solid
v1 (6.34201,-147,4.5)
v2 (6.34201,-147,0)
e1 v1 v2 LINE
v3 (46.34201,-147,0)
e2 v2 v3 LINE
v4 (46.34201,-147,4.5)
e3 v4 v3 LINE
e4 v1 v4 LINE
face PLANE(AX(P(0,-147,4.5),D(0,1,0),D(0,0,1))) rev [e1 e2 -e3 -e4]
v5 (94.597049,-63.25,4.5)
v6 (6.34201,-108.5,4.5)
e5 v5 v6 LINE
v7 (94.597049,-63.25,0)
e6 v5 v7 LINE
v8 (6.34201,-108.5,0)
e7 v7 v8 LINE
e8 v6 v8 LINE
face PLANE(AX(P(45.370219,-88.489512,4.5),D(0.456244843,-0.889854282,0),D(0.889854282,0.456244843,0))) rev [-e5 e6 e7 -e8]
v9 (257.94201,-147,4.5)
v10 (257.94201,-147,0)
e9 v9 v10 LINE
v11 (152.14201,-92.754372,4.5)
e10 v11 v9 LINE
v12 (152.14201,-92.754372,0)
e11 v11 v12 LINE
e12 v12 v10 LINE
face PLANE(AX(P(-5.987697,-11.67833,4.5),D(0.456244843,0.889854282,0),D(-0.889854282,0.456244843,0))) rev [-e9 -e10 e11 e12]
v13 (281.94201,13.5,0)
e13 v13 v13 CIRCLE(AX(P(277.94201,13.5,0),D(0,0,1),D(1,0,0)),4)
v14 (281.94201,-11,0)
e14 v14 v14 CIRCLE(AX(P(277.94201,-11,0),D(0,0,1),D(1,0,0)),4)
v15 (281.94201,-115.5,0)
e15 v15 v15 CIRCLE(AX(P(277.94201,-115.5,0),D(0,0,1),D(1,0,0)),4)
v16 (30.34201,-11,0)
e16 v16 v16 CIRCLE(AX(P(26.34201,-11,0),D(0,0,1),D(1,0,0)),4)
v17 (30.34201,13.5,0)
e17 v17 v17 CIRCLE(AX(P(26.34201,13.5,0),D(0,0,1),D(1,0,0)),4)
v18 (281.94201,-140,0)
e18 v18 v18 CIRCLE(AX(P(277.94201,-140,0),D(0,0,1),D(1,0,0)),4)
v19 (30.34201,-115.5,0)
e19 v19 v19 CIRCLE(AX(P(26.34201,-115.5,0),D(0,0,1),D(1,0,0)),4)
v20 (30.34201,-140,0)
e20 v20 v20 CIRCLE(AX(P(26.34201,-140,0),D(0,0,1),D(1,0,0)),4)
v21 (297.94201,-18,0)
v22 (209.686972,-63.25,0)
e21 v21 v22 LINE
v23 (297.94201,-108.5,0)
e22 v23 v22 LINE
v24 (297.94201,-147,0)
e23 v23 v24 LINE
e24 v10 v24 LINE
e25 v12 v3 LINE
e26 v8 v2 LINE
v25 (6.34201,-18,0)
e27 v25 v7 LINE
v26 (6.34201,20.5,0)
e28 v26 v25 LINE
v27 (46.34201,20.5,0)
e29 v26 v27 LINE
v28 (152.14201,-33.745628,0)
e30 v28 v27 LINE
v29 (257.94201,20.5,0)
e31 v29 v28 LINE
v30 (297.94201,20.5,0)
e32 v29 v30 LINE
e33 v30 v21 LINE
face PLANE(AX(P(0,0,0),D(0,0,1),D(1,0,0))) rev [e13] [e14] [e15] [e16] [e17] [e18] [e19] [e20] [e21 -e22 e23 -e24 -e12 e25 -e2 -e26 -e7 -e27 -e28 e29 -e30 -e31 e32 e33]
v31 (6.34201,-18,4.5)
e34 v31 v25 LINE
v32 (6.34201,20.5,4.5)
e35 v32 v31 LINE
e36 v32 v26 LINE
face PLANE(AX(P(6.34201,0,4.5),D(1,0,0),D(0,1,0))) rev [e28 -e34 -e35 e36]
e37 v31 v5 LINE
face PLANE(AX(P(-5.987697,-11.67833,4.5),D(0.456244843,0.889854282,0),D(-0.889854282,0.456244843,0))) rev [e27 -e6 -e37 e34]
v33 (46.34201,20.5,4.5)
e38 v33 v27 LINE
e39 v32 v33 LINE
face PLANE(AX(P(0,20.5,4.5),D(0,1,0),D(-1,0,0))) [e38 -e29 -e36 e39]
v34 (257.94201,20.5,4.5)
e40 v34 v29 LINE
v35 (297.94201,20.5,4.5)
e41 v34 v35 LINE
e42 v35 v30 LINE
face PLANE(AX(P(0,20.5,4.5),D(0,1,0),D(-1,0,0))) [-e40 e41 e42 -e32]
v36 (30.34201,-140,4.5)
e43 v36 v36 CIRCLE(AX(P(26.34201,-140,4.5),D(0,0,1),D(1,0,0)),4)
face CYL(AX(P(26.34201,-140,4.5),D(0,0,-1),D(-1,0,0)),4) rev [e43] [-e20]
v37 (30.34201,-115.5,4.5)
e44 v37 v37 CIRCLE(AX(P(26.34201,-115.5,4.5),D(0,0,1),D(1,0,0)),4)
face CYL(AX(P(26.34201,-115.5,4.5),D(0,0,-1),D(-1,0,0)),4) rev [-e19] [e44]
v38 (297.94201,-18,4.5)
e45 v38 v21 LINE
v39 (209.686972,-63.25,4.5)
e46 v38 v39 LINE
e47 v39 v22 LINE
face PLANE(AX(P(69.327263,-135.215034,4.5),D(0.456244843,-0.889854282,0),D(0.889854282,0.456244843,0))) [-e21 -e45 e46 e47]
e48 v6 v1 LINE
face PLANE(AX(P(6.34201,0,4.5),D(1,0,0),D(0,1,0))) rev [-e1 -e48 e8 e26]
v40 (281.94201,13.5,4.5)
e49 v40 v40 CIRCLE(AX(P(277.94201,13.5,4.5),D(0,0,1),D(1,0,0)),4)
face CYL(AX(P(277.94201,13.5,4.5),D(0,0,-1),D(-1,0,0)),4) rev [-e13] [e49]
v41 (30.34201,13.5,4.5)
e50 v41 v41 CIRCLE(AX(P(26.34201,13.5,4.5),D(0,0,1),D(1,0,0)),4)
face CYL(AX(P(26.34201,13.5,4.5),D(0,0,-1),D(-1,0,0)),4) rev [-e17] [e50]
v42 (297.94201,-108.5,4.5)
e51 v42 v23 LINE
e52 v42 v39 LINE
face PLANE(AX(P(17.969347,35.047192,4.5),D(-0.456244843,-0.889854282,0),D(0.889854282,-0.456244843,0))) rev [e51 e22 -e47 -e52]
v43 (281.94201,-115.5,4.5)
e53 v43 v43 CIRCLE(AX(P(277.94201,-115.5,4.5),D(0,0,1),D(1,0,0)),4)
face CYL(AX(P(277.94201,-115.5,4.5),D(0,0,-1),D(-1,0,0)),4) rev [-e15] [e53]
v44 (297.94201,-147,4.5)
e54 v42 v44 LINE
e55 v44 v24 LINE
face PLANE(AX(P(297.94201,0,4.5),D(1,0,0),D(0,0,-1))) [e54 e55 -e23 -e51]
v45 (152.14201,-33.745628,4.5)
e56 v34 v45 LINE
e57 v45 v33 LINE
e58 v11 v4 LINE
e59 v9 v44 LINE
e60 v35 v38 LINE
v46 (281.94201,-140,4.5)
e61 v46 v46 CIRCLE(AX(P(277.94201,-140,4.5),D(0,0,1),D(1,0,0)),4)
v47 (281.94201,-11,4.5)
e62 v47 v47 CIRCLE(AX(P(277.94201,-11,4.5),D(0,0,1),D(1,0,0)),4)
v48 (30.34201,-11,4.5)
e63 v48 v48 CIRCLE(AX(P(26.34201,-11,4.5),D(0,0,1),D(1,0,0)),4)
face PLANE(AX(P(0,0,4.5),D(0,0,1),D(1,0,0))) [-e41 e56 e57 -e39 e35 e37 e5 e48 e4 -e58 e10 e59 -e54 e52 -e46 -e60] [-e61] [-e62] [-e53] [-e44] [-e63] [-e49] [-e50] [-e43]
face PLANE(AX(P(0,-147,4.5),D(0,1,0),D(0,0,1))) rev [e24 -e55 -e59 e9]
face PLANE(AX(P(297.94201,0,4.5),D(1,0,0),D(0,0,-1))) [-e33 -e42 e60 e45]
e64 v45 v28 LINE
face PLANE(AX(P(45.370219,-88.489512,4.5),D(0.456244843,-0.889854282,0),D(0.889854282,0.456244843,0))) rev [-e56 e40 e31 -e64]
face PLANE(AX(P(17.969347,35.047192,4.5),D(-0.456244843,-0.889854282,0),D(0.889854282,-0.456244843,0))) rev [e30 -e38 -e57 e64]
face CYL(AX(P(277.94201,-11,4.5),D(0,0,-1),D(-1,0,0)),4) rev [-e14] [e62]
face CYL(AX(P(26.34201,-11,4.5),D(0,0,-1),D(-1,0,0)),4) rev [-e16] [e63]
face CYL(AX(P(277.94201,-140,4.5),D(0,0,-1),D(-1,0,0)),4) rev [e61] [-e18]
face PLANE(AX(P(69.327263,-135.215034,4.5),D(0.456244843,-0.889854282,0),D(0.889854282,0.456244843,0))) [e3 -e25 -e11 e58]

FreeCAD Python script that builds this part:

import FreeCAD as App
import Part
import Sketcher

V = App.Vector


def add_polygon(sketch, points):
    """Adds a closed chain of lines whose ends are joined by coincident constraints."""
    first, n = sketch.GeometryCount, len(points)
    for a, b in zip(points, points[1:] + points[:1]):
        sketch.addGeometry(Part.LineSegment(App.Vector(*a, 0), App.Vector(*b, 0)), False)
    for i in range(n):
        sketch.addConstraint(Sketcher.Constraint("Coincident", first + i, 2, first + (i + 1) % n, 1))

doc = App.newDocument("Part")
params = doc.addObject("Spreadsheet::Sheet", "Params")
for row, (alias, value) in enumerate([
    ("sketch1_diameter", "8 mm"),
    ("sketch1_width", "40 mm"),
    ("sketch1_height", "38.5 mm"),
    ("pad1_length", "4.5 mm"),
], start=1):
    params.set(f"A{row}", alias)
    params.set(f"B{row}", "=" + value)
    params.setAlias(f"B{row}", alias)

body = doc.addObject("PartDesign::Body", "Body")

sketch1 = doc.addObject("Sketcher::SketchObject", "Sketch")
body.addObject(sketch1)
sketch1.AttachmentSupport = (doc.XY_Plane, [""])
sketch1.MapMode = "FlatFace"
add_polygon(sketch1, [(46.34201, -147), (152.14201, -92.754372), (257.94201, -147), (297.94201, -147), (297.94201, -108.5), (209.686972, -63.25), (297.94201, -18), (297.94201, 20.5), (257.94201, 20.5), (152.14201, -33.745628), (46.34201, 20.5), (6.34201, 20.5), (6.34201, -18), (94.597049, -63.25), (6.34201, -108.5), (6.34201, -147)])
sketch1.addGeometry(Part.Circle(V(26.34201, -140, 0), V(0, 0, 1), 4), False)
sketch1.addGeometry(Part.Circle(V(26.34201, -115.5, 0), V(0, 0, 1), 4), False)
sketch1.addGeometry(Part.Circle(V(277.94201, -140, 0), V(0, 0, 1), 4), False)
sketch1.addGeometry(Part.Circle(V(277.94201, -115.5, 0), V(0, 0, 1), 4), False)
sketch1.addGeometry(Part.Circle(V(26.34201, -11, 0), V(0, 0, 1), 4), False)
sketch1.addGeometry(Part.Circle(V(26.34201, 13.5, 0), V(0, 0, 1), 4), False)
sketch1.addGeometry(Part.Circle(V(277.94201, -11, 0), V(0, 0, 1), 4), False)
sketch1.addGeometry(Part.Circle(V(277.94201, 13.5, 0), V(0, 0, 1), 4), False)
sketch1.addConstraint([
    Sketcher.Constraint("Horizontal", 2),
    Sketcher.Constraint("Vertical", 3),
    Sketcher.Constraint("Vertical", 6),
    Sketcher.Constraint("Horizontal", 7),
    Sketcher.Constraint("Horizontal", 10),
    Sketcher.Constraint("Vertical", 11),
    Sketcher.Constraint("Vertical", 14),
    Sketcher.Constraint("Horizontal", 15),
    Sketcher.Constraint("Equal", 16, 17),
    Sketcher.Constraint("Equal", 17, 18),
    Sketcher.Constraint("Equal", 18, 19),
    Sketcher.Constraint("Equal", 19, 20),
    Sketcher.Constraint("Equal", 20, 21),
    Sketcher.Constraint("Equal", 21, 22),
    Sketcher.Constraint("Equal", 22, 23),
    Sketcher.Constraint("Parallel", 1, 4),
    Sketcher.Constraint("Parallel", 0, 5),
    Sketcher.Constraint("Parallel", 5, 8),
    Sketcher.Constraint("Parallel", 4, 9),
    Sketcher.Constraint("Parallel", 9, 12),
    Sketcher.Constraint("Parallel", 8, 13),
    Sketcher.Constraint("Horizontal", 16, 3, 18, 3),
    Sketcher.Constraint("Horizontal", 17, 3, 19, 3),
    Sketcher.Constraint("Horizontal", 20, 3, 22, 3),
    Sketcher.Constraint("Horizontal", 21, 3, 23, 3),
    Sketcher.Constraint("Horizontal", 7, 2, 9, 2),
    Sketcher.Constraint("Horizontal", 5, 2, 11, 2),
    Sketcher.Constraint("Horizontal", 4, 2, 12, 2),
    Sketcher.Constraint("Horizontal", 3, 2, 13, 2),
    Sketcher.Constraint("Horizontal", 2, 2, 14, 2),
    Sketcher.Constraint("Vertical", 16, 3, 17, 3),
    Sketcher.Constraint("Vertical", 18, 3, 19, 3),
    Sketcher.Constraint("Vertical", 17, 3, 20, 3),
    Sketcher.Constraint("Vertical", 20, 3, 21, 3),
    Sketcher.Constraint("Vertical", 19, 3, 22, 3),
    Sketcher.Constraint("Vertical", 22, 3, 23, 3),
    Sketcher.Constraint("Vertical", 3, 2, 5, 2),
    Sketcher.Constraint("Vertical", 1, 2, 7, 2),
    Sketcher.Constraint("Vertical", 0, 2, 8, 2),
    Sketcher.Constraint("Vertical", 11, 2, 13, 2),
    Sketcher.Constraint("Equal", 7, 10),
    Sketcher.Constraint("Equal", 3, 6),
    Sketcher.Constraint("Diameter", 16, 8.0),
    Sketcher.Constraint("DistanceX", 2, 1, 2, 2, 40.0),
    Sketcher.Constraint("DistanceY", 3, 1, 3, 2, 38.5),
    Sketcher.Constraint("DistanceY", 16, 3, -1, 1, 140.0),
    Sketcher.Constraint("DistanceY", 20, 3, -1, 1, 11.0),
    Sketcher.Constraint("DistanceY", 1, 2, -1, 1, 147.0),
    Sketcher.Constraint("DistanceY", 5, 2, -1, 1, 18.0),
    Sketcher.Constraint("DistanceY", 17, 3, 21, 3, 129.0),
    Sketcher.Constraint("DistanceX", 1, 2, 18, 3, 20.0),
    Sketcher.Constraint("DistanceY", 19, 3, 3, 2, 7.0),
    Sketcher.Constraint("DistanceX", 21, 3, 9, 2, 20.0),
    Sketcher.Constraint("DistanceX", 16, 3, 18, 3, 251.6),
    Sketcher.Constraint("Distance", 0, 118.895871),
    Sketcher.Constraint("DistanceX", -1, 1, 16, 3, 26.34201),
])
sketch1.setExpression("Constraints[58]", "Params.sketch1_diameter")
sketch1.setExpression("Constraints[59]", "Params.sketch1_width")
sketch1.setExpression("Constraints[60]", "Params.sketch1_height")
pad1 = doc.addObject("PartDesign::Pad", "Pad")
body.addObject(pad1)
pad1.Profile = sketch1
pad1.setExpression("Length", "Params.pad1_length")

doc.recompute()
